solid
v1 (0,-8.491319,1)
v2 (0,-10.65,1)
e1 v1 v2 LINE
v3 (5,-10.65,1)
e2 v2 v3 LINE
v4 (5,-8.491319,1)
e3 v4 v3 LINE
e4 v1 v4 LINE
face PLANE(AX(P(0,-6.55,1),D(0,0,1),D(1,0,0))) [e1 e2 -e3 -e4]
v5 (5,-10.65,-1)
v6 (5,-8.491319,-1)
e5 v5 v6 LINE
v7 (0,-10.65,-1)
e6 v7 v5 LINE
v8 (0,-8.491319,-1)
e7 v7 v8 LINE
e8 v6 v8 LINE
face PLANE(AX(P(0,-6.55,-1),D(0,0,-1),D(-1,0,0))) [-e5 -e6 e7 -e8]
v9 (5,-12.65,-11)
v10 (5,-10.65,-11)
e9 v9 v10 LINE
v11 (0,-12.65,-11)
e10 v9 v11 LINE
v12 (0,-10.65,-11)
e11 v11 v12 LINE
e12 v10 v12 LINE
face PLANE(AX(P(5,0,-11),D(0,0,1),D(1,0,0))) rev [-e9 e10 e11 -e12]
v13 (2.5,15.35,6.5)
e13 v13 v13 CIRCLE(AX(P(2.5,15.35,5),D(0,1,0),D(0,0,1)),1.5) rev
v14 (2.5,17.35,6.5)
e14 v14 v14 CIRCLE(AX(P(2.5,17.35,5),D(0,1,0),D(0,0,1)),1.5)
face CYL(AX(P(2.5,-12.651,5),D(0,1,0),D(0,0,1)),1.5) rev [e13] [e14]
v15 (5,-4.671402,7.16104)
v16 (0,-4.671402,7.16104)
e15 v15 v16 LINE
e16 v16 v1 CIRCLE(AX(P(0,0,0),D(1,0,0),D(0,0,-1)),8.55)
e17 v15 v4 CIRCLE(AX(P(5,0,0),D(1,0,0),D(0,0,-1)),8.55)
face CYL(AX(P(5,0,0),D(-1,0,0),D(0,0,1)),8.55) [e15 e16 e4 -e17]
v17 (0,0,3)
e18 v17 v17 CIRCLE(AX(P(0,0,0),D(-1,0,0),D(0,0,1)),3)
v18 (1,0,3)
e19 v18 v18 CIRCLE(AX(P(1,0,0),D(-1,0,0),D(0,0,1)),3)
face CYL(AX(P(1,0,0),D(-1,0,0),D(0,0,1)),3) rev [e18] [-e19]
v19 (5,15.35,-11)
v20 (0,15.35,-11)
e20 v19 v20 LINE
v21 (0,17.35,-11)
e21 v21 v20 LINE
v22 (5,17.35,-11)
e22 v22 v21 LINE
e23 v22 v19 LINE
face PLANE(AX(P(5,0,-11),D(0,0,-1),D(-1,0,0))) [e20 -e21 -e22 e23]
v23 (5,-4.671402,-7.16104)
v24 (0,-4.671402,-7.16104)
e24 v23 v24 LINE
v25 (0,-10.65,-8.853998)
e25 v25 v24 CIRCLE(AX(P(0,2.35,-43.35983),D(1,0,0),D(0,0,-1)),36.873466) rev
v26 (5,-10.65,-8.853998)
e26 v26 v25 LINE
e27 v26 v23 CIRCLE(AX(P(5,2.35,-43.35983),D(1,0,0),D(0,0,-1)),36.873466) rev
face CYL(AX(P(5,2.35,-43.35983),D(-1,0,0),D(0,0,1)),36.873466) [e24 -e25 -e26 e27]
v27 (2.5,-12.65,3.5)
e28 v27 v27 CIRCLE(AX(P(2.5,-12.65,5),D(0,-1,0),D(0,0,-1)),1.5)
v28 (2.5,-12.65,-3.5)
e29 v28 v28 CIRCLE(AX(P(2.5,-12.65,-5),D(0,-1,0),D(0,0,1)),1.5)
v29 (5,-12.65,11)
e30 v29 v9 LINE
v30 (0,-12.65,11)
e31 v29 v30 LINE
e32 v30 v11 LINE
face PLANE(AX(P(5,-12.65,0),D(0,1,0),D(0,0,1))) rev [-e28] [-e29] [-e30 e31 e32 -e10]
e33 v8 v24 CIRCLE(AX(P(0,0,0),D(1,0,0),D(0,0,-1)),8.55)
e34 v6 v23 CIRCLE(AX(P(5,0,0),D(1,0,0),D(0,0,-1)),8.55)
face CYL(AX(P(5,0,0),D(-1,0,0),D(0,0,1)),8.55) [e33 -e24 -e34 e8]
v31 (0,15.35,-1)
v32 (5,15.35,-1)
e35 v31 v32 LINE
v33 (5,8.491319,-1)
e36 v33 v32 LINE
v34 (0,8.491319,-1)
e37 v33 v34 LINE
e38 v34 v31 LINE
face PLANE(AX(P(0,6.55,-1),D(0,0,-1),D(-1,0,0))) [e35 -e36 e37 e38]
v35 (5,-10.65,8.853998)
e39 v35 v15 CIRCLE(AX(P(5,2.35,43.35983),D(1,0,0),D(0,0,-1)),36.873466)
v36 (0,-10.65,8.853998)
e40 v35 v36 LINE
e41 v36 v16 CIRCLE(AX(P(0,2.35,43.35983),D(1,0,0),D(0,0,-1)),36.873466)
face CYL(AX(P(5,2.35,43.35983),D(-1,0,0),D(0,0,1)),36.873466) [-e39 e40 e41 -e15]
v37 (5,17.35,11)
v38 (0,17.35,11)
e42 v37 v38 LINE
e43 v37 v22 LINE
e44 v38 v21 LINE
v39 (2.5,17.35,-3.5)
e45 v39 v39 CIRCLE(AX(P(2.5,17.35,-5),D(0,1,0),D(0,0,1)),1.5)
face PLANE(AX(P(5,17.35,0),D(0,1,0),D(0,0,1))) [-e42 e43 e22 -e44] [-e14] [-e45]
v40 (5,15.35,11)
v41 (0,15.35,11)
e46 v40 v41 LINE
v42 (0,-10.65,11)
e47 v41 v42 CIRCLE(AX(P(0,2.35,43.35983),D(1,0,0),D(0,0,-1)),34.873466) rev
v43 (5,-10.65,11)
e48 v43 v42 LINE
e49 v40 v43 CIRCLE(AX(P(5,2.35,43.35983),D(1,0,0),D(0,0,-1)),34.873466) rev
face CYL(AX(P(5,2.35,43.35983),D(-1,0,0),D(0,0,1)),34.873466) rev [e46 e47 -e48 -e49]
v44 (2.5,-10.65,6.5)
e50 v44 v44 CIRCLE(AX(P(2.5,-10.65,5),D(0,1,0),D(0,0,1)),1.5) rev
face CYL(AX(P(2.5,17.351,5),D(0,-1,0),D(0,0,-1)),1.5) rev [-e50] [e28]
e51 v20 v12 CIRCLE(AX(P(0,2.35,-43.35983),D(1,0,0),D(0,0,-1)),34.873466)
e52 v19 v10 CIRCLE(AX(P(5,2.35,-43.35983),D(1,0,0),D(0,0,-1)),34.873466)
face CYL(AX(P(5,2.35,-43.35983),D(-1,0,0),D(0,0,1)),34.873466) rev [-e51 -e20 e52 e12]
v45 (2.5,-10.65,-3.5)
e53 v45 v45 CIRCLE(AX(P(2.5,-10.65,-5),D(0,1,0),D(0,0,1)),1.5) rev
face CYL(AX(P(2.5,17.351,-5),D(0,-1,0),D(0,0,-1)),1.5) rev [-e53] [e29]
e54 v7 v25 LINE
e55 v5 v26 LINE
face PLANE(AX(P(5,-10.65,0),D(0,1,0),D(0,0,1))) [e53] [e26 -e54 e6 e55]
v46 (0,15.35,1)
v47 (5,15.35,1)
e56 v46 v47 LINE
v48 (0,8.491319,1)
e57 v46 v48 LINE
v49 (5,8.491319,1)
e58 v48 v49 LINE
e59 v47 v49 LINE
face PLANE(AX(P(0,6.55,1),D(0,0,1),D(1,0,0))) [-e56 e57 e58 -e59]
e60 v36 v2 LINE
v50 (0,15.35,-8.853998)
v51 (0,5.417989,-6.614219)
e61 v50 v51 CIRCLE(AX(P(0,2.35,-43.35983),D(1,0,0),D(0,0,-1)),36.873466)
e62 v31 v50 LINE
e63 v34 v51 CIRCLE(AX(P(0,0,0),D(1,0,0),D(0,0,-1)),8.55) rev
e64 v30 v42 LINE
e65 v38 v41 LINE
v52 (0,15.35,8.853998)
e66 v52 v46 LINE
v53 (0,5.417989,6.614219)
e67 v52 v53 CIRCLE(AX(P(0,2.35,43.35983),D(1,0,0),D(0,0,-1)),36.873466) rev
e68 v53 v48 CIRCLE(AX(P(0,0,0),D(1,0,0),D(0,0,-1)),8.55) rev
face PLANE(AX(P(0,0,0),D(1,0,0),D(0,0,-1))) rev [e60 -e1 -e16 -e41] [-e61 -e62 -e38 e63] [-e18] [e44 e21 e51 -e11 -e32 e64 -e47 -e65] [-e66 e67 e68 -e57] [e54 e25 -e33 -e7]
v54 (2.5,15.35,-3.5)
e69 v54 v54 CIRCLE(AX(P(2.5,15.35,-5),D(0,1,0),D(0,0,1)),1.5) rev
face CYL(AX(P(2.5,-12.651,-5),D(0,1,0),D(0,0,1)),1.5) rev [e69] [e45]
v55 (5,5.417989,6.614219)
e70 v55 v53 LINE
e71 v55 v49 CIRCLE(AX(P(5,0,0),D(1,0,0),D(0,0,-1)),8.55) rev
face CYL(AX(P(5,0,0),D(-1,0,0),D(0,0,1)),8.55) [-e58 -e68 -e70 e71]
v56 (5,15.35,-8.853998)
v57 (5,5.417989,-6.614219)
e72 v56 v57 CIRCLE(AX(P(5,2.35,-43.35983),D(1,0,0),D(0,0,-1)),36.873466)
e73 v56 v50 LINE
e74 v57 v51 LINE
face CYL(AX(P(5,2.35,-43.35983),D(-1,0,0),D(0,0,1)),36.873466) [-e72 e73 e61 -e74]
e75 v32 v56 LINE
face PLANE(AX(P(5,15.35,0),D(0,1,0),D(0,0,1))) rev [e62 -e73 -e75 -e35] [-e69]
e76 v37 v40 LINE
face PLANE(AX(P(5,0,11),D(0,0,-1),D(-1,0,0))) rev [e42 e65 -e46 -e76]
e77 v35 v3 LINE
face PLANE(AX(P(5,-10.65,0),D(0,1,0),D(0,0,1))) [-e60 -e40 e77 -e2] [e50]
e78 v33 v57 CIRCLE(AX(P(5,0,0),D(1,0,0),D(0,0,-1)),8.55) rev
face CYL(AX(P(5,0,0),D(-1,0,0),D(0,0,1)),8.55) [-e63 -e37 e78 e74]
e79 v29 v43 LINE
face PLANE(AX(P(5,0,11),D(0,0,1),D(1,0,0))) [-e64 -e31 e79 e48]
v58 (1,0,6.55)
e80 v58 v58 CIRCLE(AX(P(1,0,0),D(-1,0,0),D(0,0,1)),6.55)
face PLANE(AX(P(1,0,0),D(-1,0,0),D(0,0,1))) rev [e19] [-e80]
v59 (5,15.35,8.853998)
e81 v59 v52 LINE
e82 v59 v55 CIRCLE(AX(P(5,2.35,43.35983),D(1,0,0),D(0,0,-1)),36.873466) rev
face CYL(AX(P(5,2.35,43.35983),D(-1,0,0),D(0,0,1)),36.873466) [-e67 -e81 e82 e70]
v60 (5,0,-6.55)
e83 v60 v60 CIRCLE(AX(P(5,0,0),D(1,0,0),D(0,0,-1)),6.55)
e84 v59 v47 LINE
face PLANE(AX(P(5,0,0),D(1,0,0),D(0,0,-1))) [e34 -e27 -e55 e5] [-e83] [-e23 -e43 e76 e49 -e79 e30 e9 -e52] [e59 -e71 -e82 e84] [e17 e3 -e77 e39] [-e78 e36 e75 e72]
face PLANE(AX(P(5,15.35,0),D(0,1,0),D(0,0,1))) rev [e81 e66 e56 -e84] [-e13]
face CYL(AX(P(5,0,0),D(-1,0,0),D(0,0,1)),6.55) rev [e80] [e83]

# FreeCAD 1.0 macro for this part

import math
import FreeCAD as App
import Part
import Sketcher

V = App.Vector


def add_polygon(sketch, points):
    """Adds a closed chain of lines whose ends are joined by coincident constraints."""
    first, n = sketch.GeometryCount, len(points)
    for a, b in zip(points, points[1:] + points[:1]):
        sketch.addGeometry(Part.LineSegment(App.Vector(*a, 0), App.Vector(*b, 0)), False)
    for i in range(n):
        sketch.addConstraint(Sketcher.Constraint("Coincident", first + i, 2, first + (i + 1) % n, 1))

doc = App.newDocument("Part")
body = doc.addObject("PartDesign::Body", "Body")

sketch1 = body.newObject("Sketcher::SketchObject", "Sketch")
sketch1.AttachmentSupport = (doc.getObject("YZ_Plane"), [""])
sketch1.MapMode = "FlatFace"
sketch1.addGeometry([
    Part.ArcOfCircle(Part.Circle(V(2.4, -43.4, 0), V(0, 0, 1), 34.9), math.radians(68), math.radians(112)),
    Part.LineSegment(V(15.3, -11, 0), V(17.4, -11, 0)),
    Part.LineSegment(V(17.4, -11, 0), V(17.4, 11, 0)),
    Part.LineSegment(V(17.4, 11, 0), V(15.3, 11, 0)),
    Part.ArcOfCircle(Part.Circle(V(2.4, 43.4, 0), V(0, 0, 1), 34.9), math.radians(-112), math.radians(-68)),
    Part.LineSegment(V(-10.7, 11, 0), V(-12.7, 11, 0)),
    Part.LineSegment(V(-12.7, 11, 0), V(-12.7, -11, 0)),
    Part.LineSegment(V(-12.7, -11, 0), V(-10.7, -11, 0)),
    Part.LineSegment(V(-10.7, -8.9, 0), V(-10.7, 8.9, 0)),
    Part.ArcOfCircle(Part.Circle(V(2.3, 43.4, 0), V(0, 0, 1), 36.9), math.radians(-110.64), math.radians(-100.98)),
    Part.ArcOfCircle(Part.Circle(V(0, 0, 0), V(0, 0, 1), 8.6), math.radians(123), math.radians(237)),
    Part.ArcOfCircle(Part.Circle(V(2.3, -43.4, 0), V(0, 0, 1), 36.9), math.radians(100.98), math.radians(110.64)),
    Part.Circle(V(0, 0, 0), V(0, 0, 1), 6.5),
    Part.LineSegment(V(15.3, 8.9, 0), V(15.3, -8.9, 0)),
    Part.ArcOfCircle(Part.Circle(V(2.4, -43.4, 0), V(0, 0, 1), 36.9), math.radians(69.36), math.radians(85.23)),
    Part.ArcOfCircle(Part.Circle(V(0, 0, 0), V(0, 0, 1), 8.6), math.radians(-51), math.radians(51)),
    Part.ArcOfCircle(Part.Circle(V(2.4, 43.4, 0), V(0, 0, 1), 36.9), math.radians(-85.23), math.radians(-69.36)),
], False)
sketch1.addConstraint([
    Sketcher.Constraint("Coincident", 0, 1, 1, 1),
    Sketcher.Constraint("Coincident", 1, 2, 2, 1),
    Sketcher.Constraint("Coincident", 2, 2, 3, 1),
    Sketcher.Constraint("Coincident", 3, 2, 4, 2),
    Sketcher.Constraint("Coincident", 4, 1, 5, 1),
    Sketcher.Constraint("Coincident", 5, 2, 6, 1),
    Sketcher.Constraint("Coincident", 6, 2, 7, 1),
    Sketcher.Constraint("Coincident", 7, 2, 0, 2),
    Sketcher.Constraint("Coincident", 8, 2, 9, 1),
    Sketcher.Constraint("Coincident", 9, 2, 10, 1),
    Sketcher.Constraint("Coincident", 10, 2, 11, 1),
    Sketcher.Constraint("Coincident", 11, 2, 8, 1),
    Sketcher.Constraint("Coincident", 13, 2, 14, 1),
    Sketcher.Constraint("Coincident", 14, 2, 15, 1),
    Sketcher.Constraint("Coincident", 15, 2, 16, 1),
    Sketcher.Constraint("Coincident", 16, 2, 13, 1),
    Sketcher.Constraint("Horizontal", 1),
    Sketcher.Constraint("Vertical", 2),
    Sketcher.Constraint("Horizontal", 3),
    Sketcher.Constraint("Horizontal", 5),
    Sketcher.Constraint("Vertical", 6),
    Sketcher.Constraint("Horizontal", 7),
    Sketcher.Constraint("Vertical", 8),
    Sketcher.Constraint("Vertical", 13),
    Sketcher.Constraint("Coincident", 10, 3, -1, 1),
    Sketcher.Constraint("Coincident", 12, 3, -1, 1),
    Sketcher.Constraint("Coincident", 15, 3, -1, 1),
    Sketcher.Constraint("Coincident", 9, 3, 4, 3),
    Sketcher.Constraint("Coincident", 11, 3, 0, 3),
    Sketcher.Constraint("Coincident", 14, 3, 0, 3),
    Sketcher.Constraint("Coincident", 16, 3, 4, 3),
    Sketcher.Constraint("Equal", 0, 4),
    Sketcher.Constraint("Equal", 9, 11),
    Sketcher.Constraint("Equal", 11, 14),
    Sketcher.Constraint("Equal", 10, 15),
    Sketcher.Constraint("Equal", 14, 16),
    Sketcher.Constraint("Symmetric", 0, 3, 4, 3, -1),
    Sketcher.Constraint("Horizontal", 3, 2, 4, 1),
    Sketcher.Constraint("Horizontal", 1, 2, 6, 2),
    Sketcher.Constraint("Horizontal", 11, 2, 13, 2),
    Sketcher.Constraint("Vertical", 0, 1, 3, 2),
    Sketcher.Constraint("Vertical", 7, 2, 8, 2),
    Sketcher.Constraint("Equal", 3, 5),
    Sketcher.Constraint("Diameter", 12, 13.1),
    Sketcher.Constraint("DistanceX", 1, 1, 1, 2, 2.0),
    Sketcher.Constraint("DistanceY", 2, 1, 2, 2, 22.0),
    Sketcher.Constraint("Radius", 10, 8.55),
    Sketcher.Constraint("DistanceX", 11, 3, 0, 1, 13.0),
    Sketcher.Constraint("DistanceX", -1, 1, 0, 3, 2.35),
    Sketcher.Constraint("Radius", 0, 34.873466),
    Sketcher.Constraint("Radius", 9, 36.873466),
])
pad1 = body.newObject("PartDesign::Pad", "Pad")
pad1.Profile = sketch1
pad1.Length = 5

sketch2 = body.newObject("Sketcher::SketchObject", "Sketch001")
sketch2.AttachmentSupport = (doc.getObject("YZ_Plane"), [""])
sketch2.MapMode = "FlatFace"
sketch2.AttachmentOffset = App.Placement(V(0, 0, 5), App.Rotation())
add_polygon(sketch2, [(15.3, 1), (6.5, 1), (6.5, -1), (15.3, -1)])
add_polygon(sketch2, [(-6.5, 1), (-10.7, 1), (-10.7, -1), (-6.5, -1)])
sketch2.addConstraint([
    Sketcher.Constraint("Horizontal", 0),
    Sketcher.Constraint("Vertical", 1),
    Sketcher.Constraint("Horizontal", 2),
    Sketcher.Constraint("Vertical", 3),
    Sketcher.Constraint("Horizontal", 4),
    Sketcher.Constraint("Vertical", 5),
    Sketcher.Constraint("Horizontal", 6),
    Sketcher.Constraint("Vertical", 7),
    Sketcher.Constraint("Symmetric", 0, 2, 6, 2, -1, 1),
    Sketcher.Constraint("Horizontal", 3, 2, 4, 2),
    Sketcher.Constraint("Horizontal", 2, 2, 5, 2),
    Sketcher.Constraint("DistanceY", 1, 2, 1, 1, 2.0),
    Sketcher.Constraint("DistanceX", 0, 2, 0, 1, 8.8),
    Sketcher.Constraint("DistanceX", 4, 2, 4, 1, 4.1),
    Sketcher.Constraint("DistanceX", 4, 2, 3, 2, 26.0),
])
pad2 = body.newObject("PartDesign::Pad", "Pad001")
pad2.Profile = sketch2
pad2.Length = 5
pad2.Reversed = True

sketch3 = body.newObject("Sketcher::SketchObject", "Sketch002")
sketch3.AttachmentSupport = (doc.getObject("YZ_Plane"), [""])
sketch3.MapMode = "FlatFace"
sketch3.addGeometry([
    Part.Circle(V(0, 0, 0), V(0, 0, 1), 6.5),
    Part.Circle(V(0, 0, 0), V(0, 0, 1), 3),
], False)
sketch3.addConstraint([
    Sketcher.Constraint("Coincident", 0, 3, -1, 1),
    Sketcher.Constraint("Coincident", 1, 3, -1, 1),
    Sketcher.Constraint("Diameter", 1, 6.0),
    Sketcher.Constraint("Diameter", 0, 13.1),
])
pad3 = body.newObject("PartDesign::Pad", "Pad002")
pad3.Profile = sketch3
pad3.Length = 1

sketch4 = body.newObject("Sketcher::SketchObject", "Sketch003")
sketch4.AttachmentSupport = (doc.getObject("XZ_Plane"), [""])
sketch4.MapMode = "FlatFace"
sketch4.AttachmentOffset = App.Placement(V(0, 0, 12.65), App.Rotation())
sketch4.addGeometry(Part.Circle(V(2.5, 5, 0), V(0, 0, 1), 1.5), False)
sketch4.addConstraint([
    Sketcher.Constraint("Diameter", 0, 3.0),
    Sketcher.Constraint("DistanceY", -1, 1, 0, 3, 5.0),
    Sketcher.Constraint("DistanceX", -1, 1, 0, 3, 2.5),
])
pocket1 = body.newObject("PartDesign::Pocket", "Pocket")
pocket1.Profile = sketch4
pocket1.Type = "UpToFirst"

sketch5 = body.newObject("Sketcher::SketchObject", "Sketch004")
sketch5.AttachmentSupport = (doc.getObject("XZ_Plane"), [""])
sketch5.MapMode = "FlatFace"
sketch5.AttachmentOffset = App.Placement(V(0, 0, 12.65), App.Rotation())
sketch5.addGeometry(Part.Circle(V(2.5, -5, 0), V(0, 0, 1), 1.5), False)
sketch5.addConstraint([
    Sketcher.Constraint("Diameter", 0, 3.0),
    Sketcher.Constraint("DistanceY", 0, 3, -1, 1, 5.0),
    Sketcher.Constraint("DistanceX", -1, 1, 0, 3, 2.5),
])
pocket2 = body.newObject("PartDesign::Pocket", "Pocket001")
pocket2.Profile = sketch5
pocket2.Type = "UpToFirst"

sketch6 = body.newObject("Sketcher::SketchObject", "Sketch005")
sketch6.AttachmentSupport = (doc.getObject("XZ_Plane"), [""])
sketch6.MapMode = "FlatFace"
sketch6.AttachmentOffset = App.Placement(V(0, 0, -17.35), App.Rotation())
sketch6.addGeometry(Part.Circle(V(2.5, 5, 0), V(0, 0, 1), 1.5), False)
sketch6.addConstraint([
    Sketcher.Constraint("Diameter", 0, 3.0),
    Sketcher.Constraint("DistanceY", -1, 1, 0, 3, 5.0),
    Sketcher.Constraint("DistanceX", -1, 1, 0, 3, 2.5),
])
pocket3 = body.newObject("PartDesign::Pocket", "Pocket002")
pocket3.Profile = sketch6
pocket3.Type = "UpToFirst"
pocket3.Reversed = True

sketch7 = body.newObject("Sketcher::SketchObject", "Sketch006")
sketch7.AttachmentSupport = (doc.getObject("XZ_Plane"), [""])
sketch7.MapMode = "FlatFace"
sketch7.AttachmentOffset = App.Placement(V(0, 0, -17.35), App.Rotation())
sketch7.addGeometry(Part.Circle(V(2.5, -5, 0), V(0, 0, 1), 1.5), False)
sketch7.addConstraint([
    Sketcher.Constraint("Diameter", 0, 3.0),
    Sketcher.Constraint("DistanceY", 0, 3, -1, 1, 5.0),
    Sketcher.Constraint("DistanceX", -1, 1, 0, 3, 2.5),
])
pocket4 = body.newObject("PartDesign::Pocket", "Pocket003")
pocket4.Profile = sketch7
pocket4.Type = "UpToFirst"
pocket4.Reversed = True

doc.recompute()
